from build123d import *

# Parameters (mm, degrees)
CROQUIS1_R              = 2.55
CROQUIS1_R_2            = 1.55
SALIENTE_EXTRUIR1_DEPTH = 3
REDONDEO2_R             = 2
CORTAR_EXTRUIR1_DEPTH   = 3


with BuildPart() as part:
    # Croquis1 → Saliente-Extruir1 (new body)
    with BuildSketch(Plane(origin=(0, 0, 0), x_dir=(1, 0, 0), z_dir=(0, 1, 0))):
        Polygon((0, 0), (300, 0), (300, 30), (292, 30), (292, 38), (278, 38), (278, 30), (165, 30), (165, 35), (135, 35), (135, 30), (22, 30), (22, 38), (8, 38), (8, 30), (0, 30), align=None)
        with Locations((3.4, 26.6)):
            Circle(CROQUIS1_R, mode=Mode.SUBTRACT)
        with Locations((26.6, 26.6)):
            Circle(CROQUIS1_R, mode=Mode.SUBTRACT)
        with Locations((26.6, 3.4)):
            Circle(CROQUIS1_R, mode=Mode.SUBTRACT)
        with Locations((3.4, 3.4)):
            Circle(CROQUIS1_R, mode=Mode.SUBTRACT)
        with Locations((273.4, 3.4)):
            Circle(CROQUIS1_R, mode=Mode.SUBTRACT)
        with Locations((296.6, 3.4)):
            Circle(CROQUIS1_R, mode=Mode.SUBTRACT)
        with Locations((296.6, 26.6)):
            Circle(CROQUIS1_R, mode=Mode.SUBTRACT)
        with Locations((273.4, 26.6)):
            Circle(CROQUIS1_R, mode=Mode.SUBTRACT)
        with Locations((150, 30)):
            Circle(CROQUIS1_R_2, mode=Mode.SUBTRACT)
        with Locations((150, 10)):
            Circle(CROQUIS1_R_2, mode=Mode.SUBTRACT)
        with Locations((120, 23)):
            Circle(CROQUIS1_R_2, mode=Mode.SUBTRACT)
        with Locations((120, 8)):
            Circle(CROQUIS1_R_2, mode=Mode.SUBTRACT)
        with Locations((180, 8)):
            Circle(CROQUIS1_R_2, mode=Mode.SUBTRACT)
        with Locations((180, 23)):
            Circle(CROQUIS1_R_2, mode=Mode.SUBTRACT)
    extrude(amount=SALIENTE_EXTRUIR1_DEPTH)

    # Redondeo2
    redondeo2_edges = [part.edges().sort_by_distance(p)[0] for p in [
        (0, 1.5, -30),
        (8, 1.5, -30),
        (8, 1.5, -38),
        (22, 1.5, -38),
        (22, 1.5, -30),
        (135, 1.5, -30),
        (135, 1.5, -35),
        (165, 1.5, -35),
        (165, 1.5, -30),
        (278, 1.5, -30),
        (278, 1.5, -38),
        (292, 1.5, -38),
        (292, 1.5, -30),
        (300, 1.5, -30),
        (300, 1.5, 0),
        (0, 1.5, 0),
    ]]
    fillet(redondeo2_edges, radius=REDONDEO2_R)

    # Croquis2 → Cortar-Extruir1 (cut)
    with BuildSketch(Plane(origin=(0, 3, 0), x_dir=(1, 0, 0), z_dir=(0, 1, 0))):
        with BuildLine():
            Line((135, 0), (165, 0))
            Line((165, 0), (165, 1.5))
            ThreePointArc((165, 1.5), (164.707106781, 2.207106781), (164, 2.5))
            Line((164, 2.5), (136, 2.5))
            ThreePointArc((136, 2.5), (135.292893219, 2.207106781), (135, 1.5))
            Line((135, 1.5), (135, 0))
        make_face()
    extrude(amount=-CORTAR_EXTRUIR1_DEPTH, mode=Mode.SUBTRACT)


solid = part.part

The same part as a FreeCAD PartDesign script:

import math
import FreeCAD as App
import Part
import Sketcher

V = App.Vector
Q = App.Units.Quantity


def edges_at(feature, points):
    """Names of the edges that pass closest to the given points."""
    edges = feature.Shape.Edges
    near = lambda p: min(range(len(edges)), key=lambda i: edges[i].distToShape(Part.Vertex(*p))[0])
    return sorted({f"Edge{near(p) + 1}" for p in points})


def add_polygon(sketch, points):
    """Adds a closed chain of lines whose ends are joined by coincident constraints."""
    first, n = sketch.GeometryCount, len(points)
    for a, b in zip(points, points[1:] + points[:1]):
        sketch.addGeometry(Part.LineSegment(App.Vector(*a, 0), App.Vector(*b, 0)), False)
    for i in range(n):
        sketch.addConstraint(Sketcher.Constraint("Coincident", first + i, 2, first + (i + 1) % n, 1))

doc = App.newDocument("Part")
body = doc.addObject("PartDesign::Body", "Body")

# Sketch on XZ plane
sketch1 = body.newObject("Sketcher::SketchObject", "Sketch")
sketch1.AttachmentSupport = (doc.getObject("XZ_Plane"), [""])
sketch1.MapMode = "FlatFace"
add_polygon(sketch1, [(0, 0), (300, 0), (300, -30), (292, -30), (292, -38), (278, -38), (278, -30), (165, -30), (165, -35), (135, -35), (135, -30), (22, -30), (22, -38), (8, -38), (8, -30), (0, -30)])  # lines 0-15
sketch1.addGeometry(Part.Circle(V(3.4, -3.4, 0), V(0, 0, 1), 2.5), False)  # 16
sketch1.addGeometry(Part.Circle(V(26.6, -3.4, 0), V(0, 0, 1), 2.5), False)  # 17
sketch1.addGeometry(Part.Circle(V(120, -8, 0), V(0, 0, 1), 1.6), False)  # 18
sketch1.addGeometry(Part.Circle(V(150, -10, 0), V(0, 0, 1), 1.6), False)  # 19
sketch1.addGeometry(Part.Circle(V(180, -8, 0), V(0, 0, 1), 1.6), False)  # 20
sketch1.addGeometry(Part.Circle(V(273.4, -3.4, 0), V(0, 0, 1), 2.5), False)  # 21
sketch1.addGeometry(Part.Circle(V(296.6, -3.4, 0), V(0, 0, 1), 2.5), False)  # 22
sketch1.addGeometry(Part.Circle(V(120, -23, 0), V(0, 0, 1), 1.6), False)  # 23
sketch1.addGeometry(Part.Circle(V(3.4, -26.6, 0), V(0, 0, 1), 2.5), False)  # 24
sketch1.addGeometry(Part.Circle(V(26.6, -26.6, 0), V(0, 0, 1), 2.5), False)  # 25
sketch1.addGeometry(Part.Circle(V(150, -30, 0), V(0, 0, 1), 1.6), False)  # 26
sketch1.addGeometry(Part.Circle(V(180, -23, 0), V(0, 0, 1), 1.6), False)  # 27
sketch1.addGeometry(Part.Circle(V(273.4, -26.6, 0), V(0, 0, 1), 2.5), False)  # 28
sketch1.addGeometry(Part.Circle(V(296.6, -26.6, 0), V(0, 0, 1), 2.5), False)  # 29
sketch1.addConstraint([
    Sketcher.Constraint("Horizontal", 0),
    Sketcher.Constraint("Vertical", 1),
    Sketcher.Constraint("Horizontal", 2),
    Sketcher.Constraint("Vertical", 3),
    Sketcher.Constraint("Horizontal", 4),
    Sketcher.Constraint("Vertical", 5),
    Sketcher.Constraint("Horizontal", 6),
    Sketcher.Constraint("Vertical", 7),
    Sketcher.Constraint("Horizontal", 8),
    Sketcher.Constraint("Vertical", 9),
    Sketcher.Constraint("Horizontal", 10),
    Sketcher.Constraint("Vertical", 11),
    Sketcher.Constraint("Horizontal", 12),
    Sketcher.Constraint("Vertical", 13),
    Sketcher.Constraint("Horizontal", 14),
    Sketcher.Constraint("Vertical", 15),
    Sketcher.Constraint("Coincident", 15, 2, -1, 1),
    Sketcher.Constraint("Equal", 16, 17),
    Sketcher.Constraint("Equal", 18, 19),
    Sketcher.Constraint("Equal", 19, 20),
    Sketcher.Constraint("Equal", 17, 21),
    Sketcher.Constraint("Equal", 21, 22),
    Sketcher.Constraint("Equal", 20, 23),
    Sketcher.Constraint("Equal", 22, 24),
    Sketcher.Constraint("Equal", 24, 25),
    Sketcher.Constraint("Equal", 23, 26),
    Sketcher.Constraint("Equal", 26, 27),
    Sketcher.Constraint("Equal", 25, 28),
    Sketcher.Constraint("Equal", 28, 29),
    Sketcher.Constraint("Horizontal", 16, 3, 17, 3),
    Sketcher.Constraint("Horizontal", 18, 3, 20, 3),
    Sketcher.Constraint("Horizontal", 17, 3, 21, 3),
    Sketcher.Constraint("Horizontal", 21, 3, 22, 3),
    Sketcher.Constraint("Horizontal", 24, 3, 25, 3),
    Sketcher.Constraint("Horizontal", 23, 3, 27, 3),
    Sketcher.Constraint("Horizontal", 25, 3, 28, 3),
    Sketcher.Constraint("Horizontal", 28, 3, 29, 3),
    Sketcher.Constraint("Horizontal", 26, 3, 1, 2),
    Sketcher.Constraint("Horizontal", 2, 2, 5, 2),
    Sketcher.Constraint("Horizontal", 6, 2, 9, 2),
    Sketcher.Constraint("Horizontal", 4, 2, 11, 2),
    Sketcher.Constraint("Horizontal", 10, 2, 13, 2),
    Sketcher.Constraint("Vertical", 18, 3, 23, 3),
    Sketcher.Constraint("Vertical", 16, 3, 24, 3),
    Sketcher.Constraint("Vertical", 17, 3, 25, 3),
    Sketcher.Constraint("Vertical", 19, 3, 26, 3),
    Sketcher.Constraint("Vertical", 20, 3, 27, 3),
    Sketcher.Constraint("Vertical", 21, 3, 28, 3),
    Sketcher.Constraint("Vertical", 22, 3, 29, 3),
    Sketcher.Constraint("Equal", 6, 10),
    Sketcher.Constraint("Equal", 4, 12),
    Sketcher.Constraint("Equal", 2, 14),
    Sketcher.Constraint("Equal", 8, 1),
    Sketcher.Constraint("Equal", 14, 3),
    Sketcher.Constraint("Diameter", 16, Q("5.1 mm")),
    Sketcher.Constraint("Diameter", 18, Q("3.1 mm")),
    Sketcher.Constraint("DistanceX", 0, 1, 0, 2, Q("300 mm")),
    Sketcher.Constraint("DistanceX", 2, 2, 2, 1, Q("8 mm")),
    Sketcher.Constraint("DistanceX", 4, 2, 4, 1, Q("14 mm")),
    Sketcher.Constraint("DistanceX", 6, 2, 6, 1, Q("113 mm")),
    Sketcher.Constraint("DistanceY", 7, 2, 7, 1, Q("5 mm")),
    Sketcher.Constraint("DistanceX", -1, 1, 18, 3, Q("120 mm")),
    Sketcher.Constraint("DistanceY", 18, 3, -1, 1, Q("8 mm")),
    Sketcher.Constraint("DistanceX", -1, 1, 19, 3, Q("150 mm")),
    Sketcher.Constraint("DistanceY", 19, 3, -1, 1, Q("10 mm")),
    Sketcher.Constraint("DistanceX", -1, 1, 20, 3, Q("180 mm")),
    Sketcher.Constraint("DistanceY", 23, 3, -1, 1, Q("23 mm")),
    Sketcher.Constraint("DistanceX", 16, 3, 21, 3, Q("270 mm")),
    Sketcher.Constraint("DistanceX", 17, 3, 22, 3, Q("270 mm")),
    Sketcher.Constraint("DistanceX", -1, 1, 16, 3, Q("3.4 mm")),
    Sketcher.Constraint("DistanceY", 16, 3, -1, 1, Q("3.4 mm")),
    Sketcher.Constraint("DistanceX", -1, 1, 17, 3, Q("26.6 mm")),
    Sketcher.Constraint("DistanceY", 24, 3, -1, 1, Q("26.6 mm")),
])
pad1 = body.newObject("PartDesign::Pad", "Pad")
pad1.Profile = sketch1
pad1.Length = 3
pad1.Reversed = True
doc.recompute()

fillet = body.newObject("PartDesign::Fillet", "Fillet")
fillet.Base = (pad1, edges_at(pad1, [
    (0, 1.5, -30),
    (8, 1.5, -30),
    (8, 1.5, -38),
    (22, 1.5, -38),
    (22, 1.5, -30),
    (135, 1.5, -30),
    (135, 1.5, -35),
    (165, 1.5, -35),
    (165, 1.5, -30),
    (278, 1.5, -30),
    (278, 1.5, -38),
    (292, 1.5, -38),
    (292, 1.5, -30),
    (300, 1.5, -30),
    (300, 1.5, 0),
    (0, 1.5, 0),
]))
fillet.Radius = 2

# Sketch on XZ plane
sketch2 = body.newObject("Sketcher::SketchObject", "Sketch001")
sketch2.AttachmentSupport = (doc.getObject("XZ_Plane"), [""])
sketch2.MapMode = "FlatFace"
sketch2.AttachmentOffset = App.Placement(V(0, 0, -3), App.Rotation())
sketch2.addGeometry([
    Part.LineSegment(V(135, 0, 0), V(165, 0, 0)),  # 0
    Part.LineSegment(V(165, 0, 0), V(165, -1.5, 0)),  # 1
    Part.ArcOfCircle(Part.Circle(V(164, -1.5, 0), V(0, 0, 1), 1), math.radians(-90), math.radians(0)),  # 2
    Part.LineSegment(V(164, -2.5, 0), V(136, -2.5, 0)),  # 3
    Part.ArcOfCircle(Part.Circle(V(136, -1.5, 0), V(0, 0, 1), 1), math.radians(-180), math.radians(-90)),  # 4
    Part.LineSegment(V(135, -1.5, 0), V(135, 0, 0)),  # 5
], False)
sketch2.addConstraint([
    Sketcher.Constraint("Coincident", 0, 2, 1, 1),
    Sketcher.Constraint("Tangent", 1, 2, 2, 2),
    Sketcher.Constraint("Tangent", 2, 1, 3, 1),
    Sketcher.Constraint("Tangent", 3, 2, 4, 2),
    Sketcher.Constraint("Tangent", 4, 1, 5, 1),
    Sketcher.Constraint("Coincident", 5, 2, 0, 1),
    Sketcher.Constraint("Horizontal", 0),
    Sketcher.Constraint("Vertical", 1),
    Sketcher.Constraint("Horizontal", 3),
    Sketcher.Constraint("Vertical", 5),
    Sketcher.Constraint("Equal", 2, 4),
    Sketcher.Constraint("PointOnObject", 0, 2, -1),
    Sketcher.Constraint("Radius", 2, Q("1 mm")),
    Sketcher.Constraint("DistanceX", 0, 1, 0, 2, Q("30 mm")),
    Sketcher.Constraint("DistanceY", 1, 2, 1, 1, Q("1.5 mm")),
    Sketcher.Constraint("DistanceX", -1, 1, 2, 3, Q("164 mm")),
])
pocket1 = body.newObject("PartDesign::Pocket", "Pocket")
pocket1.Profile = sketch2
pocket1.Length = 3
pocket1.Reversed = True

doc.recompute()
